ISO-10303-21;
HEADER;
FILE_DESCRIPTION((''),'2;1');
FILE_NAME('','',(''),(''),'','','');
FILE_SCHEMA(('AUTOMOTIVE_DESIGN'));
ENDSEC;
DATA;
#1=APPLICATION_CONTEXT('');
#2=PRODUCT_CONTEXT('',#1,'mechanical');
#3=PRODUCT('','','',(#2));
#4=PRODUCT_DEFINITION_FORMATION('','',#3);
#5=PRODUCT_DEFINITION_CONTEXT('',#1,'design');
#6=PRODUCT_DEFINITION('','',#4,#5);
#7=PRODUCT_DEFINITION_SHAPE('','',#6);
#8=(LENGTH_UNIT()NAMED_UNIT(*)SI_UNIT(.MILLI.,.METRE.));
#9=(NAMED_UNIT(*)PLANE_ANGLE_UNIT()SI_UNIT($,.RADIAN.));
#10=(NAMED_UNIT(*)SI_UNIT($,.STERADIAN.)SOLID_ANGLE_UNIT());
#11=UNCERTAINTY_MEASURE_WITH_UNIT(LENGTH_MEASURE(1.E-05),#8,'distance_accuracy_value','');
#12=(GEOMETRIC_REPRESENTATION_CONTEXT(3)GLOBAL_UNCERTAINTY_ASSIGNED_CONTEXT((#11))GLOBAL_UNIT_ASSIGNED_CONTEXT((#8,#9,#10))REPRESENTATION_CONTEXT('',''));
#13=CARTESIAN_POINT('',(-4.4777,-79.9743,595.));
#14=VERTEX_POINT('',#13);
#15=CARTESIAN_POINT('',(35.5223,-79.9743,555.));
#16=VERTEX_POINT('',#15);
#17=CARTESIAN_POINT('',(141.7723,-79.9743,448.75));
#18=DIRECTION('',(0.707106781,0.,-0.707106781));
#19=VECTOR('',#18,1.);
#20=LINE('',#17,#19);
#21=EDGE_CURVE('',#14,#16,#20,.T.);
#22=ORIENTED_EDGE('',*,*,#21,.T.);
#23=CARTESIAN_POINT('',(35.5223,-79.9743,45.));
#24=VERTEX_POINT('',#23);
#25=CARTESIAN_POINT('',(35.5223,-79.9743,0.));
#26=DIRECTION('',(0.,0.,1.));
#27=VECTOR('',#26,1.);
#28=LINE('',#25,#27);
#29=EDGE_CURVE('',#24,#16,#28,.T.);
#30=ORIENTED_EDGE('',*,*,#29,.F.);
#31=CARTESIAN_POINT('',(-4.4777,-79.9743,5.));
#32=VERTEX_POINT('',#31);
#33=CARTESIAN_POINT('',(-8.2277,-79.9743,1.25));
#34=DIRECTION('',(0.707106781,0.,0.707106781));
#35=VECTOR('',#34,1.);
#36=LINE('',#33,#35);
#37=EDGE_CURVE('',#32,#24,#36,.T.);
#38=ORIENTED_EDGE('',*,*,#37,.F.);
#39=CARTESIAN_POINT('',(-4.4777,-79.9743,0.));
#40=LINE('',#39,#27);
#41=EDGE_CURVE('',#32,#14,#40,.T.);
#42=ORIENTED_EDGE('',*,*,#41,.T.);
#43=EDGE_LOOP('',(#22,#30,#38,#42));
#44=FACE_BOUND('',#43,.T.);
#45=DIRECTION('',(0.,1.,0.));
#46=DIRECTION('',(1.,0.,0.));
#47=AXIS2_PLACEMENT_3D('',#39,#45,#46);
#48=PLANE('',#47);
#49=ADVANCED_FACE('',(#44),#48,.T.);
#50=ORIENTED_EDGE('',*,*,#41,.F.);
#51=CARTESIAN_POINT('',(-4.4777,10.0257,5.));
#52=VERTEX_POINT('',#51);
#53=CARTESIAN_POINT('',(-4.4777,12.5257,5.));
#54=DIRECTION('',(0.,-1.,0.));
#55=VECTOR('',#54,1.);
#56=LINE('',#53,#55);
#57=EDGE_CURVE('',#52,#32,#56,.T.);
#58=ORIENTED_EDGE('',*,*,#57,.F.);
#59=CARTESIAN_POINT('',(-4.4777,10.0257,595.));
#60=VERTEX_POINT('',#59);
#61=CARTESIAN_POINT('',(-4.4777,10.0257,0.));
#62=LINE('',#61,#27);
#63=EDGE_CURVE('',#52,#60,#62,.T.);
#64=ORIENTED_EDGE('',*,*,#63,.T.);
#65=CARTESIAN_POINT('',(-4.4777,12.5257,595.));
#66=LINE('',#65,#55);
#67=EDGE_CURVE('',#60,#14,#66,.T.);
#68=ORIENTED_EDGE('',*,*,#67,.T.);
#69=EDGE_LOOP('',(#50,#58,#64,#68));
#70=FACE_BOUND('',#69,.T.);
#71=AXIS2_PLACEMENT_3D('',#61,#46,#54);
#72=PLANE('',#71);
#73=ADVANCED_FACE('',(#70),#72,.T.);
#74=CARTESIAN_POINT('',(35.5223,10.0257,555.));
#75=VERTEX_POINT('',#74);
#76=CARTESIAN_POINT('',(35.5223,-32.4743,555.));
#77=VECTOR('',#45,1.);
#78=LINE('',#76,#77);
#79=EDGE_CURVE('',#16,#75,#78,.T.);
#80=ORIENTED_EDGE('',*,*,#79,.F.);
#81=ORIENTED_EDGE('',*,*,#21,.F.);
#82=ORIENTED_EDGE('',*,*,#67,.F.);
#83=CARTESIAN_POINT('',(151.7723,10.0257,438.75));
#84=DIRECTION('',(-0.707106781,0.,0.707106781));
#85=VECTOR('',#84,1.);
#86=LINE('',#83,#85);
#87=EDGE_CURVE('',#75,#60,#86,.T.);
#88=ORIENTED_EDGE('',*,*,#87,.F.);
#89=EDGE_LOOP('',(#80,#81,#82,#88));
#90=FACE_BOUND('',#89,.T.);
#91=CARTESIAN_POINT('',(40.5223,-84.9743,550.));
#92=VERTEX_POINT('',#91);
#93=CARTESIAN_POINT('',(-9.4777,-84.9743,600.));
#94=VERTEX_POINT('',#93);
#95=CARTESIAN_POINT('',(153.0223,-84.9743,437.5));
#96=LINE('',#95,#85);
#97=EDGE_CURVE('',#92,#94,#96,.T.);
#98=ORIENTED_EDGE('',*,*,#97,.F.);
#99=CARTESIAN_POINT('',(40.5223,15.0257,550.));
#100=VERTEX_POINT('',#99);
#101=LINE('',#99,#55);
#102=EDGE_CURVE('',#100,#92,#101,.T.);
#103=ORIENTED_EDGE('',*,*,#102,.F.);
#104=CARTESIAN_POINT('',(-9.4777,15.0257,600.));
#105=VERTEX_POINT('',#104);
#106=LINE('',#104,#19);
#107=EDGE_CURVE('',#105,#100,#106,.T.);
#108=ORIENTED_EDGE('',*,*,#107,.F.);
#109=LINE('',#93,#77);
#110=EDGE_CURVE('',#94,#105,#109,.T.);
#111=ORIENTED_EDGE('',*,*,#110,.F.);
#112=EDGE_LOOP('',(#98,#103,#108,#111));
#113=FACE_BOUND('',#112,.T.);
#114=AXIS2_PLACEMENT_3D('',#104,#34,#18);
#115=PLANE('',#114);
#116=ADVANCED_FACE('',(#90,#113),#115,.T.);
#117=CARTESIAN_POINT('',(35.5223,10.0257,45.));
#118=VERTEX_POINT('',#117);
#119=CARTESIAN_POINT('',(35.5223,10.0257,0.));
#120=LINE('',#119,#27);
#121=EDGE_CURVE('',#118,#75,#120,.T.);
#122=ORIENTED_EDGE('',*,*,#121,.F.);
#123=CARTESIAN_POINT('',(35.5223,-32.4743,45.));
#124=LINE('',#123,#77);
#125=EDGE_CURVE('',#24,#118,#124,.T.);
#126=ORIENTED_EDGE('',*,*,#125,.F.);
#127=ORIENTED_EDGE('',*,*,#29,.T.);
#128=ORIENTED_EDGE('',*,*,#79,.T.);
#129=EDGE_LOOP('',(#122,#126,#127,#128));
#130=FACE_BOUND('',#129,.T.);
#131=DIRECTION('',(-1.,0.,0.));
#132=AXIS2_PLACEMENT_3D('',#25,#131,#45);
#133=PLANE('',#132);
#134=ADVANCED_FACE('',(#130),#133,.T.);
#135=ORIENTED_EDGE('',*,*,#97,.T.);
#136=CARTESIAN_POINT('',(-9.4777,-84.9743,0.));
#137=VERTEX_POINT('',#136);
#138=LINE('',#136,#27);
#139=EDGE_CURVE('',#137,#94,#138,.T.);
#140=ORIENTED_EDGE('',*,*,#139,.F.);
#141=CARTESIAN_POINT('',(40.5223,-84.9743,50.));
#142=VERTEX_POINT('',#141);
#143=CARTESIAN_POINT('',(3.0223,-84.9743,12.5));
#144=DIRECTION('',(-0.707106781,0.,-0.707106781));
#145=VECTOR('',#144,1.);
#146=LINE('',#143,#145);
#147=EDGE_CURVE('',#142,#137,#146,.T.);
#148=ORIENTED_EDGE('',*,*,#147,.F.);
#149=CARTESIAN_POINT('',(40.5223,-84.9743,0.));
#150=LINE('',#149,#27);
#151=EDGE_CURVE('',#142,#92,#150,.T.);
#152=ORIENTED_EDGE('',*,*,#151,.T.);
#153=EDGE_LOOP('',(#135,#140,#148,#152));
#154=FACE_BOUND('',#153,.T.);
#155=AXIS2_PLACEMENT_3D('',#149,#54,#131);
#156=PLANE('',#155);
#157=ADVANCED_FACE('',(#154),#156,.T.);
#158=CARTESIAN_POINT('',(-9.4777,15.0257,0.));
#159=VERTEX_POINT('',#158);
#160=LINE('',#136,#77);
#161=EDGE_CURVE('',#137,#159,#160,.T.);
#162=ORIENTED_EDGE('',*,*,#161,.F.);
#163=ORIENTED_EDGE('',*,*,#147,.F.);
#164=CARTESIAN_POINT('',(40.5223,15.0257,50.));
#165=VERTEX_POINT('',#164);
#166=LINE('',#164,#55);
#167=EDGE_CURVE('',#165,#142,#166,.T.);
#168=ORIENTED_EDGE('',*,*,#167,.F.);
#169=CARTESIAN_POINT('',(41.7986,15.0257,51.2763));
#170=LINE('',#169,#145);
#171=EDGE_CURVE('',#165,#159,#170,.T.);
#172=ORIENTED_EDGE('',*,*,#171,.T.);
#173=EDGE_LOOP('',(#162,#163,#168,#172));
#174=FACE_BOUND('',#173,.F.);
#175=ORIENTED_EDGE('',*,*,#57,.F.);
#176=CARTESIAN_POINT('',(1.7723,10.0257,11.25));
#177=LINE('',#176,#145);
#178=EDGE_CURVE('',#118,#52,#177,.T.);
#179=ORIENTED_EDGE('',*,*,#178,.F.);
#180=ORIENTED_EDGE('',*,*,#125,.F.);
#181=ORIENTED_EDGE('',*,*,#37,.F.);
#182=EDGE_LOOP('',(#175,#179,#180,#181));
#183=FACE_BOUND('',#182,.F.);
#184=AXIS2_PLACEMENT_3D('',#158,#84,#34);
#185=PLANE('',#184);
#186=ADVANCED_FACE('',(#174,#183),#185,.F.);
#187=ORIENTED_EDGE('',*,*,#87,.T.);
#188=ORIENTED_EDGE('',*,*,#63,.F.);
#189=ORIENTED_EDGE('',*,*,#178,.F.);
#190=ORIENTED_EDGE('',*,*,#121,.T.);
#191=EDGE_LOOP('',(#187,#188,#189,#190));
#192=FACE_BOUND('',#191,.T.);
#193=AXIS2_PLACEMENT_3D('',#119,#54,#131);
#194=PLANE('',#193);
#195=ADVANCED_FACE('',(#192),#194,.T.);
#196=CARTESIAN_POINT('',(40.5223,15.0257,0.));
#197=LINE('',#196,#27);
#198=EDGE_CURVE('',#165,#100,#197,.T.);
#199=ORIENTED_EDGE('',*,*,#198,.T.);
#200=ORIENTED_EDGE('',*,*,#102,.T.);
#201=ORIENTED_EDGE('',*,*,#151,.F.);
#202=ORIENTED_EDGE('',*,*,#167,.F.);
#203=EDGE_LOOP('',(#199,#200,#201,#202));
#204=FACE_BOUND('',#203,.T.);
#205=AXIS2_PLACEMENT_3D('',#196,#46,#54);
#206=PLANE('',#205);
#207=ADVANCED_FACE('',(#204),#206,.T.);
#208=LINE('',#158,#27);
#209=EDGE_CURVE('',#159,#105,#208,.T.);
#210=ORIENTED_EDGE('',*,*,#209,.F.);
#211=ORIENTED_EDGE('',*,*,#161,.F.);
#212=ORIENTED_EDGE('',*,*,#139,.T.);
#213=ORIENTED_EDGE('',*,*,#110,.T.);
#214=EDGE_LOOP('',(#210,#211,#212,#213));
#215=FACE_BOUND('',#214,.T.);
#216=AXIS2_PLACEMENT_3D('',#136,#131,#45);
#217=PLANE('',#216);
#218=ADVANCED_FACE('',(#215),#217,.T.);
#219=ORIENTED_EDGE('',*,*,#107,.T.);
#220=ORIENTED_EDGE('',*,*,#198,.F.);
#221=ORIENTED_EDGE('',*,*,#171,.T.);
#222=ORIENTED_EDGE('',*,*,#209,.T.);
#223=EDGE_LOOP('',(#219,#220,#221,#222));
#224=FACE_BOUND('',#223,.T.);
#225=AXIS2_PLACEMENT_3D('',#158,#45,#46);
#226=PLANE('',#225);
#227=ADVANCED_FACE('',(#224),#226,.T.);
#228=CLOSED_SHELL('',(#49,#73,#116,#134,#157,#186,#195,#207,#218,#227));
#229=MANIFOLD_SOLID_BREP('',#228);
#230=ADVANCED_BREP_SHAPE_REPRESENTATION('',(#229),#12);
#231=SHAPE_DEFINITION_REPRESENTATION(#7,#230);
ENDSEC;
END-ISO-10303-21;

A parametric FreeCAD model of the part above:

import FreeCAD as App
import Part
import Sketcher

doc = App.newDocument("Part")
body = doc.addObject("PartDesign::Body", "Body")

sketch1 = doc.addObject("Sketcher::SketchObject", "Sketch")
body.addObject(sketch1)
sketch1.AttachmentSupport = (doc.XY_Plane, [""])
sketch1.MapMode = "FlatFace"
sketch1.addGeometry(Part.LineSegment(App.Vector(41, 15, 0), App.Vector(-9, 15, 0)), False)
sketch1.addGeometry(Part.LineSegment(App.Vector(-9, 15, 0), App.Vector(-9, -85, 0)), False)
sketch1.addGeometry(Part.LineSegment(App.Vector(-9, -85, 0), App.Vector(41, -85, 0)), False)
sketch1.addGeometry(Part.LineSegment(App.Vector(41, -85, 0), App.Vector(41, 15, 0)), False)
sketch1.addGeometry(Part.LineSegment(App.Vector(-4, 10, 0), App.Vector(36, 10, 0)), False)
sketch1.addGeometry(Part.LineSegment(App.Vector(36, 10, 0), App.Vector(36, -80, 0)), False)
sketch1.addGeometry(Part.LineSegment(App.Vector(36, -80, 0), App.Vector(-4, -80, 0)), False)
sketch1.addGeometry(Part.LineSegment(App.Vector(-4, -80, 0), App.Vector(-4, 10, 0)), False)
sketch1.addConstraint(Sketcher.Constraint("Coincident", 0, 2, 1, 1))
sketch1.addConstraint(Sketcher.Constraint("Coincident", 1, 2, 2, 1))
sketch1.addConstraint(Sketcher.Constraint("Coincident", 2, 2, 3, 1))
sketch1.addConstraint(Sketcher.Constraint("Coincident", 3, 2, 0, 1))
sketch1.addConstraint(Sketcher.Constraint("Coincident", 4, 2, 5, 1))
sketch1.addConstraint(Sketcher.Constraint("Coincident", 5, 2, 6, 1))
sketch1.addConstraint(Sketcher.Constraint("Coincident", 6, 2, 7, 1))
sketch1.addConstraint(Sketcher.Constraint("Coincident", 7, 2, 4, 1))
sketch1.addConstraint(Sketcher.Constraint("Horizontal", 0))
sketch1.addConstraint(Sketcher.Constraint("Vertical", 1))
sketch1.addConstraint(Sketcher.Constraint("Horizontal", 2))
sketch1.addConstraint(Sketcher.Constraint("Vertical", 3))
sketch1.addConstraint(Sketcher.Constraint("Horizontal", 4))
sketch1.addConstraint(Sketcher.Constraint("Vertical", 5))
sketch1.addConstraint(Sketcher.Constraint("Horizontal", 6))
sketch1.addConstraint(Sketcher.Constraint("Vertical", 7))
sketch1.addConstraint(Sketcher.Constraint("DistanceX", 0, 2, 0, 1, 50.0))
sketch1.addConstraint(Sketcher.Constraint("DistanceX", 4, 1, 4, 2, 40.0))
sketch1.addConstraint(Sketcher.Constraint("DistanceY", 1, 2, 1, 1, 100.0))
sketch1.addConstraint(Sketcher.Constraint("DistanceY", 5, 2, 5, 1, 90.0))
sketch1.addConstraint(Sketcher.Constraint("DistanceX", 4, 2, 3, 2, 5.0))
sketch1.addConstraint(Sketcher.Constraint("DistanceY", 4, 2, 3, 2, 5.0))
sketch1.addConstraint(Sketcher.Constraint("DistanceX", 0, 2, -1, 1, 9.4777))
sketch1.addConstraint(Sketcher.Constraint("DistanceY", -1, 1, 0, 2, 15.0257))
pad1 = doc.addObject("PartDesign::Pad", "Pad")
body.addObject(pad1)
pad1.Profile = sketch1
pad1.Length = 600

sketch2 = doc.addObject("Sketcher::SketchObject", "Sketch001")
body.addObject(sketch2)
sketch2.AttachmentSupport = (doc.XZ_Plane, [""])
sketch2.MapMode = "FlatFace"
sketch2.AttachmentOffset = App.Placement(App.Vector(0, 0, -15.0257), App.Rotation())
sketch2.addGeometry(Part.LineSegment(App.Vector(-9, 0, 0), App.Vector(42, 51, 0)), False)
sketch2.addGeometry(Part.LineSegment(App.Vector(42, 51, 0), App.Vector(42, 0, 0)), False)
sketch2.addGeometry(Part.LineSegment(App.Vector(42, 0, 0), App.Vector(-9, 0, 0)), False)
sketch2.addGeometry(Part.LineSegment(App.Vector(-9, 600, 0), App.Vector(41, 600, 0)), False)
sketch2.addGeometry(Part.LineSegment(App.Vector(41, 600, 0), App.Vector(41, 550, 0)), False)
sketch2.addGeometry(Part.LineSegment(App.Vector(41, 550, 0), App.Vector(-9, 600, 0)), False)
sketch2.addConstraint(Sketcher.Constraint("Coincident", 0, 2, 1, 1))
sketch2.addConstraint(Sketcher.Constraint("Coincident", 1, 2, 2, 1))
sketch2.addConstraint(Sketcher.Constraint("Coincident", 2, 2, 0, 1))
sketch2.addConstraint(Sketcher.Constraint("Coincident", 3, 2, 4, 1))
sketch2.addConstraint(Sketcher.Constraint("Coincident", 4, 2, 5, 1))
sketch2.addConstraint(Sketcher.Constraint("Coincident", 5, 2, 3, 1))
sketch2.addConstraint(Sketcher.Constraint("Vertical", 1))
sketch2.addConstraint(Sketcher.Constraint("Horizontal", 2))
sketch2.addConstraint(Sketcher.Constraint("Horizontal", 3))
sketch2.addConstraint(Sketcher.Constraint("Vertical", 4))
sketch2.addConstraint(Sketcher.Constraint("PointOnObject", 1, 2, -1))
sketch2.addConstraint(Sketcher.Constraint("Perpendicular", 0, 5))
sketch2.addConstraint(Sketcher.Constraint("Vertical", 2, 2, 5, 2))
sketch2.addConstraint(Sketcher.Constraint("Equal", 2, 1))
sketch2.addConstraint(Sketcher.Constraint("DistanceX", 3, 1, 3, 2, 50.0))
sketch2.addConstraint(Sketcher.Constraint("DistanceY", -1, 1, 3, 2, 600.0))
sketch2.addConstraint(Sketcher.Constraint("DistanceX", 2, 2, 2, 1, 51.2763))
sketch2.addConstraint(Sketcher.Constraint("DistanceX", -1, 1, 0, 2, 41.7986))
pocket1 = doc.addObject("PartDesign::Pocket", "Pocket")
body.addObject(pocket1)
pocket1.Profile = sketch2
pocket1.Length = 600
pocket1.Reversed = True

doc.recompute()
